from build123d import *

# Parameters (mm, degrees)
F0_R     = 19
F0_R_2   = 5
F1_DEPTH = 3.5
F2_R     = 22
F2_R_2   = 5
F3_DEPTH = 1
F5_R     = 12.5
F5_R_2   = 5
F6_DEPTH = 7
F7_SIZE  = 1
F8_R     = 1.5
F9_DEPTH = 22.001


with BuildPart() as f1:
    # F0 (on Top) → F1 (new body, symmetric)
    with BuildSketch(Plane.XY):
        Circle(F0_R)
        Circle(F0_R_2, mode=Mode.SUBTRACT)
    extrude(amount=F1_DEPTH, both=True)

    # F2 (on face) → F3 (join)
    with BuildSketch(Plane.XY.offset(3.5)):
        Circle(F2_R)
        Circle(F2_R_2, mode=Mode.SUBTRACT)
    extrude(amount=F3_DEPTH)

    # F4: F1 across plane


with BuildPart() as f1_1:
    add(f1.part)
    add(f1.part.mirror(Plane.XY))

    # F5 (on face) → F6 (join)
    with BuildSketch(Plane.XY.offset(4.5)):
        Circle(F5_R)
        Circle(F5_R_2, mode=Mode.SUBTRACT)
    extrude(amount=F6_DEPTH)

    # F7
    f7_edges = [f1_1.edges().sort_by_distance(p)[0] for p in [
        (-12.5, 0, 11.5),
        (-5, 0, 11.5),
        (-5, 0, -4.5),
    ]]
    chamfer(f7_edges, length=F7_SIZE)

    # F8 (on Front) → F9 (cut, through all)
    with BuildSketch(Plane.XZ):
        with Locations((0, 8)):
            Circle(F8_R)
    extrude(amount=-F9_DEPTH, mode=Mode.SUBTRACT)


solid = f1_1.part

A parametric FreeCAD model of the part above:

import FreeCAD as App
import Part
import Sketcher
Q = App.Units.Quantity


def edges_at(feature, points):
    """Names of the edges that pass closest to the given points."""
    edges = feature.Shape.Edges
    near = lambda p: min(range(len(edges)), key=lambda i: edges[i].distToShape(Part.Vertex(*p))[0])
    return sorted({f"Edge{near(p) + 1}" for p in points})

doc = App.newDocument("Part")
body = doc.addObject("PartDesign::Body", "Body")

# Sketch on XY plane
sketch1 = doc.addObject("Sketcher::SketchObject", "Sketch")
body.addObject(sketch1)
sketch1.AttachmentSupport = (doc.XY_Plane, [""])
sketch1.MapMode = "FlatFace"
sketch1.addGeometry(Part.Circle(App.Vector(0, 0, 0), App.Vector(0, 0, 1), 19), False)
sketch1.addGeometry(Part.Circle(App.Vector(0, 0, 0), App.Vector(0, 0, 1), 5), False)
sketch1.addConstraint(Sketcher.Constraint("Coincident", 0, 3, -1, 1))
sketch1.addConstraint(Sketcher.Constraint("Coincident", 1, 3, -1, 1))
sketch1.addConstraint(Sketcher.Constraint("Diameter", 0, Q("38 mm")))
sketch1.addConstraint(Sketcher.Constraint("Diameter", 1, Q("10 mm")))
pad1 = doc.addObject("PartDesign::Pad", "Pad")
body.addObject(pad1)
pad1.Profile = sketch1
pad1.Length = 7
pad1.Midplane = True

# Sketch on XY plane
sketch2 = doc.addObject("Sketcher::SketchObject", "Sketch001")
body.addObject(sketch2)
sketch2.AttachmentSupport = (doc.XY_Plane, [""])
sketch2.MapMode = "FlatFace"
sketch2.AttachmentOffset = App.Placement(App.Vector(0, 0, 3.5), App.Rotation())
sketch2.addGeometry(Part.Circle(App.Vector(0, 0, 0), App.Vector(0, 0, 1), 22), False)
sketch2.addGeometry(Part.Circle(App.Vector(0, 0, 0), App.Vector(0, 0, 1), 5), False)
sketch2.addConstraint(Sketcher.Constraint("Coincident", 0, 3, -1, 1))
sketch2.addConstraint(Sketcher.Constraint("Coincident", 1, 3, -1, 1))
sketch2.addConstraint(Sketcher.Constraint("Diameter", 0, Q("44 mm")))
sketch2.addConstraint(Sketcher.Constraint("Diameter", 1, Q("10 mm")))
pad2 = doc.addObject("PartDesign::Pad", "Pad001")
body.addObject(pad2)
pad2.Profile = sketch2
pad2.Length = 1
body2 = doc.addObject("PartDesign::Body", "Body001")
doc.recompute()

body2.BaseFeature = body
doc.recompute()

mirroring = doc.addObject("Part::Mirroring", "Mirroring")
mirroring.Source = body
mirroring.Base = App.Vector(0, 0, 0)
mirroring.Normal = App.Vector(0, 0, 1)
body3 = doc.addObject("PartDesign::Body", "Body002")
body3.BaseFeature = mirroring
boolean = doc.addObject("PartDesign::Boolean", "Boolean")
body2.addObject(boolean)
boolean.Type = "Fuse"
boolean.addObjects([body3])
doc.recompute()

# Sketch on XY plane
sketch3 = doc.addObject("Sketcher::SketchObject", "Sketch002")
body2.addObject(sketch3)
sketch3.AttachmentSupport = (doc.getObject("XY_Plane001"), [""])
sketch3.MapMode = "FlatFace"
sketch3.AttachmentOffset = App.Placement(App.Vector(0, 0, 4.5), App.Rotation())
sketch3.addGeometry(Part.Circle(App.Vector(0, 0, 0), App.Vector(0, 0, 1), 12.5), False)
sketch3.addGeometry(Part.Circle(App.Vector(0, 0, 0), App.Vector(0, 0, 1), 5), False)
sketch3.addConstraint(Sketcher.Constraint("Coincident", 0, 3, -1, 1))
sketch3.addConstraint(Sketcher.Constraint("Coincident", 1, 3, -1, 1))
sketch3.addConstraint(Sketcher.Constraint("Diameter", 0, Q("25 mm")))
sketch3.addConstraint(Sketcher.Constraint("Diameter", 1, Q("10 mm")))
pad3 = doc.addObject("PartDesign::Pad", "Pad002")
body2.addObject(pad3)
pad3.Profile = sketch3
pad3.Length = 7
doc.recompute()

chamfer = doc.addObject("PartDesign::Chamfer", "Chamfer")
body2.addObject(chamfer)
chamfer.Base = (pad3, edges_at(pad3, [(-12.5, 0, 11.5), (-5, 0, 11.5), (-5, 0, -4.5)]))
chamfer.Size = 1

# Sketch on XZ plane
sketch4 = doc.addObject("Sketcher::SketchObject", "Sketch003")
body2.addObject(sketch4)
sketch4.AttachmentSupport = (doc.getObject("XZ_Plane001"), [""])
sketch4.MapMode = "FlatFace"
sketch4.addGeometry(Part.Circle(App.Vector(0, 8, 0), App.Vector(0, 0, 1), 1.5), False)
sketch4.addConstraint(Sketcher.Constraint("PointOnObject", 0, 3, -2))
sketch4.addConstraint(Sketcher.Constraint("Diameter", 0, Q("3 mm")))
sketch4.addConstraint(Sketcher.Constraint("DistanceY", -1, 1, 0, 3, Q("8 mm")))
pocket1 = doc.addObject("PartDesign::Pocket", "Pocket")
body2.addObject(pocket1)
pocket1.Profile = sketch4
pocket1.Type = "ThroughAll"
mirroring.Visibility = False

doc.recompute()
